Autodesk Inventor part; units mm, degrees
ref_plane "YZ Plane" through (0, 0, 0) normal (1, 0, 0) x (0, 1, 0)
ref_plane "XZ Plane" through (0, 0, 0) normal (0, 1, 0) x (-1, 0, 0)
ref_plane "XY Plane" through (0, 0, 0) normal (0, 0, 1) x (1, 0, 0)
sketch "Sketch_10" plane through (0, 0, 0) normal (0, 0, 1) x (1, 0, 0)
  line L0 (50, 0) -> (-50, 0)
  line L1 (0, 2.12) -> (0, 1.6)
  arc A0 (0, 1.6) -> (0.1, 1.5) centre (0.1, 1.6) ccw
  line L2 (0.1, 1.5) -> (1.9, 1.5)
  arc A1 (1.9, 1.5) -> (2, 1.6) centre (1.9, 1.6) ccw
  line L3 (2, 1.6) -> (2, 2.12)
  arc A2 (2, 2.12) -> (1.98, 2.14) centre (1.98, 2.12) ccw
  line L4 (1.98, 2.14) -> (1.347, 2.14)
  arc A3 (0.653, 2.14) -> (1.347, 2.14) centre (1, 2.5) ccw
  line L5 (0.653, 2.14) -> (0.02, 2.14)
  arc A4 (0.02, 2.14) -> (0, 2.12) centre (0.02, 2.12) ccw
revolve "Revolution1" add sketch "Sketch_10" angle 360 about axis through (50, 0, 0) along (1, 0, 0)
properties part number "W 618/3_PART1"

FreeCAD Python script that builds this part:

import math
import FreeCAD as App
import Part
import Sketcher
from FreeCAD import Vector

doc = App.newDocument("Part")
body = doc.addObject("PartDesign::Body", "Body")

# Sketch on XY plane
sketch1 = body.newObject("Sketcher::SketchObject", "Sketch")
sketch1.AttachmentSupport = (doc.getObject("XY_Plane"), [""])
sketch1.MapMode = "FlatFace"
sketch1.addGeometry([
    Part.ArcOfCircle(Part.Circle(Vector(0.02, 2.12, 0), Vector(0, 0, 1), 0.02), math.radians(90), math.radians(180)),  # 0
    Part.LineSegment(Vector(0, 2.12, 0), Vector(0, 1.6, 0)),  # 1
    Part.ArcOfCircle(Part.Circle(Vector(0.1, 1.6, 0), Vector(0, 0, 1), 0.1), math.radians(180), math.radians(270)),  # 2
    Part.LineSegment(Vector(0.1, 1.5, 0), Vector(1.9, 1.5, 0)),  # 3
    Part.ArcOfCircle(Part.Circle(Vector(1.9, 1.6, 0), Vector(0, 0, 1), 0.1), math.radians(-90), math.radians(0)),  # 4
    Part.LineSegment(Vector(2, 1.6, 0), Vector(2, 2.12, 0)),  # 5
    Part.ArcOfCircle(Part.Circle(Vector(1.98, 2.12, 0), Vector(0, 0, 1), 0.02), math.radians(0), math.radians(90)),  # 6
    Part.LineSegment(Vector(1.98, 2.14, 0), Vector(1.347, 2.14, 0)),  # 7
    Part.ArcOfCircle(Part.Circle(Vector(1, 2.5, 0), Vector(0, 0, 1), 0.5), math.radians(-134), math.radians(-46)),  # 8
    Part.LineSegment(Vector(0.653, 2.14, 0), Vector(0.02, 2.14, 0)),  # 9
], False)
sketch1.addConstraint([
    Sketcher.Constraint("Tangent", 0, 2, 1, 1),
    Sketcher.Constraint("Tangent", 1, 2, 2, 1),
    Sketcher.Constraint("Tangent", 2, 2, 3, 1),
    Sketcher.Constraint("Tangent", 3, 2, 4, 1),
    Sketcher.Constraint("Tangent", 4, 2, 5, 1),
    Sketcher.Constraint("Tangent", 5, 2, 6, 1),
    Sketcher.Constraint("Tangent", 6, 2, 7, 1),
    Sketcher.Constraint("Coincident", 7, 2, 8, 2),
    Sketcher.Constraint("Coincident", 8, 1, 9, 1),
    Sketcher.Constraint("Tangent", 9, 2, 0, 1),
    Sketcher.Constraint("Vertical", 1),
    Sketcher.Constraint("Horizontal", 3),
    Sketcher.Constraint("Vertical", 5),
    Sketcher.Constraint("Horizontal", 7),
    Sketcher.Constraint("Horizontal", 9),
    Sketcher.Constraint("Equal", 2, 4),
    Sketcher.Constraint("Equal", 0, 6),
    Sketcher.Constraint("PointOnObject", 0, 2, -2),
    Sketcher.Constraint("Horizontal", 0, 3, 6, 3),
    Sketcher.Constraint("Equal", 7, 9),
    Sketcher.Constraint("Radius", 2, 0.1),
    Sketcher.Constraint("Radius", 8, 0.5),
    Sketcher.Constraint("Radius", 0, 0.02),
    Sketcher.Constraint("DistanceX", 3, 1, 3, 2, 1.8),
    Sketcher.Constraint("DistanceY", 2, 2, 8, 3, 1.0),
    Sketcher.Constraint("DistanceY", 1, 2, 1, 1, 0.52),
    Sketcher.Constraint("DistanceY", -1, 1, 2, 3, 1.6),
])
revolution = body.newObject("PartDesign::Revolution", "Revolution")
revolution.Profile = sketch1
revolution.ReferenceAxis = (sketch1, ["H_Axis"])
revolution.Angle = 360

doc.recompute()
